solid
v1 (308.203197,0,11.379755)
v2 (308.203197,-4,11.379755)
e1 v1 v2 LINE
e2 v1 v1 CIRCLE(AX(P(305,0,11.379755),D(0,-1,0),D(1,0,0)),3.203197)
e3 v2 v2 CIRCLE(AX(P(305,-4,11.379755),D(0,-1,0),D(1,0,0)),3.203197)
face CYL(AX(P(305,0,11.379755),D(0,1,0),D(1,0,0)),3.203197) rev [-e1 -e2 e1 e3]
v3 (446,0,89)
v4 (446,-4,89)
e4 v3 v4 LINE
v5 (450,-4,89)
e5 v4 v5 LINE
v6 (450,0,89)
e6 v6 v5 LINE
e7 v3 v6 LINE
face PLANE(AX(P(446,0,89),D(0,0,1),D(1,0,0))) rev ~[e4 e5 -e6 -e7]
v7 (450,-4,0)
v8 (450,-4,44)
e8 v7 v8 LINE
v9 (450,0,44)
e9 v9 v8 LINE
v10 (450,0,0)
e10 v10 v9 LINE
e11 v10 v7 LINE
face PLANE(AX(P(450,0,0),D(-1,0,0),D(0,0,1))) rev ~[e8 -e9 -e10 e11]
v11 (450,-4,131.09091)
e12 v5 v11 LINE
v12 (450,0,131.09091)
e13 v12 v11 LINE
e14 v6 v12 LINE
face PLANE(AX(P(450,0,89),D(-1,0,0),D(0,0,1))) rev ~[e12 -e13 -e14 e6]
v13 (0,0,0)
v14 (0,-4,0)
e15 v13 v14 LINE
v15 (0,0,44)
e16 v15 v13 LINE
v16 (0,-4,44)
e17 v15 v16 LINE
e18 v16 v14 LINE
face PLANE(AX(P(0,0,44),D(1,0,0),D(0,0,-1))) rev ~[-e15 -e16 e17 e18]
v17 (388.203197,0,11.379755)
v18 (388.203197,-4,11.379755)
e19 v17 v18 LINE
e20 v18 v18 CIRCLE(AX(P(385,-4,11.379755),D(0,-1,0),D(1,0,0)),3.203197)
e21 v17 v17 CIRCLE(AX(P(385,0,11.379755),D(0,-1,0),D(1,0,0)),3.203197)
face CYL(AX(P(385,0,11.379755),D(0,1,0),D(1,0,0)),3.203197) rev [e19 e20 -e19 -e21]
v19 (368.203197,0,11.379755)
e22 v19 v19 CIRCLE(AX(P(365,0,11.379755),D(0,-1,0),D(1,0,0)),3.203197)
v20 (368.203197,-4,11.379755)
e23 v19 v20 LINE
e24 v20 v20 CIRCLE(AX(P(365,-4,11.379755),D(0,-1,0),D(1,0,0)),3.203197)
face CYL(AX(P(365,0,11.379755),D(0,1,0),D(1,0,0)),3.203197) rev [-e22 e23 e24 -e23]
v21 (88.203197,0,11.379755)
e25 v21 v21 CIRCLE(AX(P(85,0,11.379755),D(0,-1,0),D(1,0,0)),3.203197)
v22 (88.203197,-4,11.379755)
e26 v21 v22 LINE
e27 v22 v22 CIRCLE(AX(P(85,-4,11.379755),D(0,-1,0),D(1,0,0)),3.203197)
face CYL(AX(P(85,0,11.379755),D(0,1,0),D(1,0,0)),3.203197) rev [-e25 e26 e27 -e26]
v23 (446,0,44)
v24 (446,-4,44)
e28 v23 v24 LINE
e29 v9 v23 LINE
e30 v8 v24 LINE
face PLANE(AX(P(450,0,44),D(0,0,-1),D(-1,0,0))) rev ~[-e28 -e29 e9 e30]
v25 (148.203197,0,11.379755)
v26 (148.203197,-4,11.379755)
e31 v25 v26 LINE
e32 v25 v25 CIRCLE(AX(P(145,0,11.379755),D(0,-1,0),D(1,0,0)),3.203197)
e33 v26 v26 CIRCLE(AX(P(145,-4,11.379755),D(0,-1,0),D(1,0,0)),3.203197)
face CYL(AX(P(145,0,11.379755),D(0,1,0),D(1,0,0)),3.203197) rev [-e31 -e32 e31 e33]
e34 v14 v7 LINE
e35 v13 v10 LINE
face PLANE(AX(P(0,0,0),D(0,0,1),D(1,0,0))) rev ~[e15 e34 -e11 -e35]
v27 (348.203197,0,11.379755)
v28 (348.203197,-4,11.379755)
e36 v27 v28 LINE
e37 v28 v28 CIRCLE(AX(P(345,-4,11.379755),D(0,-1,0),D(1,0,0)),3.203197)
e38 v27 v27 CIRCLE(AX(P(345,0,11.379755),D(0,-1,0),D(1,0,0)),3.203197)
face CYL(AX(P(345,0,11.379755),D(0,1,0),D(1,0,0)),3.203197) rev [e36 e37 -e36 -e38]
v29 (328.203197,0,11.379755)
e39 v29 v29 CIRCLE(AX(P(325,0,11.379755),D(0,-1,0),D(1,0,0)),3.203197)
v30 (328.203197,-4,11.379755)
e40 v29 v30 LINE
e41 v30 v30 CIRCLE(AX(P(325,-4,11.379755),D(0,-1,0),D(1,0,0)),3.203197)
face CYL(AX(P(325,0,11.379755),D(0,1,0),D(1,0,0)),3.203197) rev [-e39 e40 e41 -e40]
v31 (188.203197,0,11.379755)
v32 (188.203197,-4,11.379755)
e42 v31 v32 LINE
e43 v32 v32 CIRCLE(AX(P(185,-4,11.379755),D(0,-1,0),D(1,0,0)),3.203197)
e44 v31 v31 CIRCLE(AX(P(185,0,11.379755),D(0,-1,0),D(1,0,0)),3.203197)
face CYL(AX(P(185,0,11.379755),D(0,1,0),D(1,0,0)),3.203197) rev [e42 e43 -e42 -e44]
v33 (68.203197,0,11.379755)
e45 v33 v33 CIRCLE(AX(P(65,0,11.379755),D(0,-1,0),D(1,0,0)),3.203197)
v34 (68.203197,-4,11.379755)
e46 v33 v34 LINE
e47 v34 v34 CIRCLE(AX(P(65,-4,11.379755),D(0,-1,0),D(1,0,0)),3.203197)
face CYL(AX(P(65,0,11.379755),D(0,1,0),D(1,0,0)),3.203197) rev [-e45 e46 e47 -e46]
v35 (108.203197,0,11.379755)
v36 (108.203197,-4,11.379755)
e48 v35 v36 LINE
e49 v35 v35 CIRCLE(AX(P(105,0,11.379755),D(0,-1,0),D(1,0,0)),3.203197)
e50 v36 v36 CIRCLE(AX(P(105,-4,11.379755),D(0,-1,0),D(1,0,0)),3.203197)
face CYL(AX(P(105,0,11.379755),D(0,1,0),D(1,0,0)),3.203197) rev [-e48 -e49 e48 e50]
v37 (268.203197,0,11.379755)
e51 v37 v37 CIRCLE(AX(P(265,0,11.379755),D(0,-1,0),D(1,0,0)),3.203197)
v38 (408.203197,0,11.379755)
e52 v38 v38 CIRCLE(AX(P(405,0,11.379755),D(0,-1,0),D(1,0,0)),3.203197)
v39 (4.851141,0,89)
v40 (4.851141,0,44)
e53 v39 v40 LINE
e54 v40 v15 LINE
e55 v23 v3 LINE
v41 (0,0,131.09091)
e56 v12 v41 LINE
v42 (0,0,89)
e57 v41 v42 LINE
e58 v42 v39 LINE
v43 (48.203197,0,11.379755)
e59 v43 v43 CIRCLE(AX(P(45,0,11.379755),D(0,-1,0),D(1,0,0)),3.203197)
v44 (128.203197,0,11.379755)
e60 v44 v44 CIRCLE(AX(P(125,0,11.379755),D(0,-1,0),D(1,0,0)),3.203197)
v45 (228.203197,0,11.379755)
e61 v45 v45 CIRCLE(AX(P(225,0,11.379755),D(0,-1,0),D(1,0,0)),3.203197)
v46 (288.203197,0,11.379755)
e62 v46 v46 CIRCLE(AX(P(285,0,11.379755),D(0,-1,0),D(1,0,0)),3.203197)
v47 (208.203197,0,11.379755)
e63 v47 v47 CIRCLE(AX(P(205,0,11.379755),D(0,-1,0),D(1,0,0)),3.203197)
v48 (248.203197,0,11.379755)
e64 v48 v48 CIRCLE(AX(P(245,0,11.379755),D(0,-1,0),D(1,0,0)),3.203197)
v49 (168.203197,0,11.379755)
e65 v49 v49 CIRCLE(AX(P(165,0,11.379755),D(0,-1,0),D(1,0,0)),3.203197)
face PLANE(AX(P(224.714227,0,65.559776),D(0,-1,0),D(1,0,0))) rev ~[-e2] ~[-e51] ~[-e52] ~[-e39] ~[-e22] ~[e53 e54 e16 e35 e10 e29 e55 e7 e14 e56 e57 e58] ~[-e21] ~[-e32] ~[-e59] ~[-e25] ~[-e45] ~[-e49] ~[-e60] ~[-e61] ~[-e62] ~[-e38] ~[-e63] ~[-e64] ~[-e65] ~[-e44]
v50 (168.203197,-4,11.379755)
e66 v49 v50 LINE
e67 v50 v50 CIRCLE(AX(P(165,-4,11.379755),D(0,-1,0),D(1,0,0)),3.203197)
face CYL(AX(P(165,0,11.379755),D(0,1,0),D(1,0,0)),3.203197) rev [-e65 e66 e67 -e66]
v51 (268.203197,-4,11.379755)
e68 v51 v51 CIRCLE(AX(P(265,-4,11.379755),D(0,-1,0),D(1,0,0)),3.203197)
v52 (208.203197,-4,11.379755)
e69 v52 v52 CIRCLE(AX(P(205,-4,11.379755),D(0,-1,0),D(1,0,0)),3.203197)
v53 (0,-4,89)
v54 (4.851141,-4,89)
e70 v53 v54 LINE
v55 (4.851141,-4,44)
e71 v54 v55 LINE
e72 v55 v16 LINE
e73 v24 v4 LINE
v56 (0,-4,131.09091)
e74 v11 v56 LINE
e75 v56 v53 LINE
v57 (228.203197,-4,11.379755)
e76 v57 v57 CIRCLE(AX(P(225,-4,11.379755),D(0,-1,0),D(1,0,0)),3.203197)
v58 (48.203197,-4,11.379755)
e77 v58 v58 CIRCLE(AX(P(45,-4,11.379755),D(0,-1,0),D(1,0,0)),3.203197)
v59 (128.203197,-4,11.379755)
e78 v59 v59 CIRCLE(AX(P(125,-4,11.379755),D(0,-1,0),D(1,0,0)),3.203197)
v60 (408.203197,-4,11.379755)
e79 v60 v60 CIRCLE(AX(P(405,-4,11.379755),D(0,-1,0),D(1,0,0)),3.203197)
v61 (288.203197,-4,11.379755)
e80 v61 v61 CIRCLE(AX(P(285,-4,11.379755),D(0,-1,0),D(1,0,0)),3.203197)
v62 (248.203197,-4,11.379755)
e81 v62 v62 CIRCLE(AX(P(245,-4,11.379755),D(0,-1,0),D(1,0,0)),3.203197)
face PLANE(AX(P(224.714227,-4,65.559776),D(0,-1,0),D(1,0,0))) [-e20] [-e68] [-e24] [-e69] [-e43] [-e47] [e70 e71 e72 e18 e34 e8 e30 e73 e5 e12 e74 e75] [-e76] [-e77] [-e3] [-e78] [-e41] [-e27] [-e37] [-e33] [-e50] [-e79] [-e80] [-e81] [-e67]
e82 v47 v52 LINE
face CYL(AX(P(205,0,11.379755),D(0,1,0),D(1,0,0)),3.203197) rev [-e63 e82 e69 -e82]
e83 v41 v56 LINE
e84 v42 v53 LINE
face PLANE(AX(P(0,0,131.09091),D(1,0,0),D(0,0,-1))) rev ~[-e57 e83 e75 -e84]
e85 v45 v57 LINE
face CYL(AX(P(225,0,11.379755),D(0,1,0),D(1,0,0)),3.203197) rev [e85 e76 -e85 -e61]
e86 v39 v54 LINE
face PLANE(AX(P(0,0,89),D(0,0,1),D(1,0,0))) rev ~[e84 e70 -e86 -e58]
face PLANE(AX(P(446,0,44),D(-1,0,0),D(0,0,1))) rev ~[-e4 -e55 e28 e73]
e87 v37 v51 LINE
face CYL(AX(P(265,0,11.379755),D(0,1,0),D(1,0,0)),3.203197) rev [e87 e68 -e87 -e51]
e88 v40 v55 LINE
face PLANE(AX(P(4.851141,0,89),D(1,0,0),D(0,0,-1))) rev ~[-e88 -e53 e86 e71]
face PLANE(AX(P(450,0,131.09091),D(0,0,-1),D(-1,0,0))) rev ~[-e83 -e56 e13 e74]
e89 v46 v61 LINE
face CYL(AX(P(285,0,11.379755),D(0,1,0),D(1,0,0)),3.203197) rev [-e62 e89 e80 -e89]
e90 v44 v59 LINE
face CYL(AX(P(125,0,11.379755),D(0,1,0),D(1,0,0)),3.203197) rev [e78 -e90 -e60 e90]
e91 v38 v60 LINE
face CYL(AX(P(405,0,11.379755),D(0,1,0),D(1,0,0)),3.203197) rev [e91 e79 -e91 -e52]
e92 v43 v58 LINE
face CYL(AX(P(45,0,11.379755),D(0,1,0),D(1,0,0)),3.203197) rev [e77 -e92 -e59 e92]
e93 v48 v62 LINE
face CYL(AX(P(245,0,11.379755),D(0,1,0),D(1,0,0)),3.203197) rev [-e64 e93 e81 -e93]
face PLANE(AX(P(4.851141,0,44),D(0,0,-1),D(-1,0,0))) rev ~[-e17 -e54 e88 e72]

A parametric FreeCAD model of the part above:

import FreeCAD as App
import Part
import Sketcher
Q = App.Units.Quantity

doc = App.newDocument("Part")
params = doc.addObject("Spreadsheet::Sheet", "Params")
for row, (alias, value) in enumerate([
    ("sketch1_width", "450 mm"),
    ("sketch1_width2", "4 mm"),
    ("sketch1_height", "44 mm"),
    ("sketch1_height2", "45 mm"),
    ("pad1_length", "4 mm"),
], start=1):
    params.set(f"A{row}", alias)
    params.set(f"B{row}", "=" + value)
    params.setAlias(f"B{row}", alias)

body = doc.addObject("PartDesign::Body", "Body")

sketch1 = doc.addObject("Sketcher::SketchObject", "Sketch")
body.addObject(sketch1)
sketch1.AttachmentSupport = (doc.XZ_Plane, [""])
sketch1.MapMode = "FlatFace"
sketch1.addGeometry([
    Part.LineSegment(App.Vector(0, 44, 0), App.Vector(0, 0, 0)),
    Part.LineSegment(App.Vector(0, 0, 0), App.Vector(450, 0, 0)),
    Part.LineSegment(App.Vector(450, 0, 0), App.Vector(450, 44, 0)),
    Part.LineSegment(App.Vector(450, 44, 0), App.Vector(446, 44, 0)),
    Part.LineSegment(App.Vector(446, 44, 0), App.Vector(446, 89, 0)),
    Part.LineSegment(App.Vector(446, 89, 0), App.Vector(450, 89, 0)),
    Part.LineSegment(App.Vector(450, 89, 0), App.Vector(450, 131.09091, 0)),
    Part.LineSegment(App.Vector(450, 131.09091, 0), App.Vector(0, 131.09091, 0)),
    Part.LineSegment(App.Vector(0, 131.09091, 0), App.Vector(0, 89, 0)),
    Part.LineSegment(App.Vector(0, 89, 0), App.Vector(4.851141, 89, 0)),
    Part.LineSegment(App.Vector(4.851141, 89, 0), App.Vector(4.851141, 44, 0)),
    Part.LineSegment(App.Vector(4.851141, 44, 0), App.Vector(0, 44, 0)),
    Part.Circle(App.Vector(45, 11.379755, 0), App.Vector(0, 0, 1), 3.203197),
    Part.Circle(App.Vector(65, 11.379755, 0), App.Vector(0, 0, 1), 3.203197),
    Part.Circle(App.Vector(85, 11.379755, 0), App.Vector(0, 0, 1), 3.203197),
    Part.Circle(App.Vector(105, 11.379755, 0), App.Vector(0, 0, 1), 3.203197),
    Part.Circle(App.Vector(125, 11.379755, 0), App.Vector(0, 0, 1), 3.203197),
    Part.Circle(App.Vector(145, 11.379755, 0), App.Vector(0, 0, 1), 3.203197),
    Part.Circle(App.Vector(165, 11.379755, 0), App.Vector(0, 0, 1), 3.203197),
    Part.Circle(App.Vector(185, 11.379755, 0), App.Vector(0, 0, 1), 3.203197),
    Part.Circle(App.Vector(205, 11.379755, 0), App.Vector(0, 0, 1), 3.203197),
    Part.Circle(App.Vector(225, 11.379755, 0), App.Vector(0, 0, 1), 3.203197),
    Part.Circle(App.Vector(245, 11.379755, 0), App.Vector(0, 0, 1), 3.203197),
    Part.Circle(App.Vector(265, 11.379755, 0), App.Vector(0, 0, 1), 3.203197),
    Part.Circle(App.Vector(285, 11.379755, 0), App.Vector(0, 0, 1), 3.203197),
    Part.Circle(App.Vector(305, 11.379755, 0), App.Vector(0, 0, 1), 3.203197),
    Part.Circle(App.Vector(325, 11.379755, 0), App.Vector(0, 0, 1), 3.203197),
    Part.Circle(App.Vector(345, 11.379755, 0), App.Vector(0, 0, 1), 3.203197),
    Part.Circle(App.Vector(365, 11.379755, 0), App.Vector(0, 0, 1), 3.203197),
    Part.Circle(App.Vector(385, 11.379755, 0), App.Vector(0, 0, 1), 3.203197),
    Part.Circle(App.Vector(405, 11.379755, 0), App.Vector(0, 0, 1), 3.203197),
], False)
sketch1.addConstraint([
    Sketcher.Constraint("Coincident", 0, 2, 1, 1),
    Sketcher.Constraint("Coincident", 1, 2, 2, 1),
    Sketcher.Constraint("Coincident", 2, 2, 3, 1),
    Sketcher.Constraint("Coincident", 3, 2, 4, 1),
    Sketcher.Constraint("Coincident", 4, 2, 5, 1),
    Sketcher.Constraint("Coincident", 5, 2, 6, 1),
    Sketcher.Constraint("Coincident", 6, 2, 7, 1),
    Sketcher.Constraint("Coincident", 7, 2, 8, 1),
    Sketcher.Constraint("Coincident", 8, 2, 9, 1),
    Sketcher.Constraint("Coincident", 9, 2, 10, 1),
    Sketcher.Constraint("Coincident", 10, 2, 11, 1),
    Sketcher.Constraint("Coincident", 11, 2, 0, 1),
    Sketcher.Constraint("Vertical", 0),
    Sketcher.Constraint("Horizontal", 1),
    Sketcher.Constraint("Vertical", 2),
    Sketcher.Constraint("Horizontal", 3),
    Sketcher.Constraint("Vertical", 4),
    Sketcher.Constraint("Horizontal", 5),
    Sketcher.Constraint("Vertical", 6),
    Sketcher.Constraint("Horizontal", 7),
    Sketcher.Constraint("Vertical", 8),
    Sketcher.Constraint("Horizontal", 9),
    Sketcher.Constraint("Vertical", 10),
    Sketcher.Constraint("Horizontal", 11),
    Sketcher.Constraint("Coincident", 0, 2, -1, 1),
    Sketcher.Constraint("Equal", 12, 13),
    Sketcher.Constraint("Equal", 13, 14),
    Sketcher.Constraint("Equal", 14, 15),
    Sketcher.Constraint("Equal", 15, 16),
    Sketcher.Constraint("Equal", 16, 17),
    Sketcher.Constraint("Equal", 17, 18),
    Sketcher.Constraint("Equal", 18, 19),
    Sketcher.Constraint("Equal", 19, 20),
    Sketcher.Constraint("Equal", 20, 21),
    Sketcher.Constraint("Equal", 21, 22),
    Sketcher.Constraint("Equal", 22, 23),
    Sketcher.Constraint("Equal", 23, 24),
    Sketcher.Constraint("Equal", 24, 25),
    Sketcher.Constraint("Equal", 25, 26),
    Sketcher.Constraint("Equal", 26, 27),
    Sketcher.Constraint("Equal", 27, 28),
    Sketcher.Constraint("Equal", 28, 29),
    Sketcher.Constraint("Equal", 29, 30),
    Sketcher.Constraint("PointOnObject", 7, 2, -2),
    Sketcher.Constraint("Horizontal", 12, 3, 13, 3),
    Sketcher.Constraint("Horizontal", 13, 3, 14, 3),
    Sketcher.Constraint("Horizontal", 14, 3, 15, 3),
    Sketcher.Constraint("Horizontal", 15, 3, 16, 3),
    Sketcher.Constraint("Horizontal", 16, 3, 17, 3),
    Sketcher.Constraint("Horizontal", 17, 3, 18, 3),
    Sketcher.Constraint("Horizontal", 18, 3, 19, 3),
    Sketcher.Constraint("Horizontal", 19, 3, 20, 3),
    Sketcher.Constraint("Horizontal", 20, 3, 21, 3),
    Sketcher.Constraint("Horizontal", 21, 3, 22, 3),
    Sketcher.Constraint("Horizontal", 22, 3, 23, 3),
    Sketcher.Constraint("Horizontal", 23, 3, 24, 3),
    Sketcher.Constraint("Horizontal", 24, 3, 25, 3),
    Sketcher.Constraint("Horizontal", 25, 3, 26, 3),
    Sketcher.Constraint("Horizontal", 26, 3, 27, 3),
    Sketcher.Constraint("Horizontal", 27, 3, 28, 3),
    Sketcher.Constraint("Horizontal", 28, 3, 29, 3),
    Sketcher.Constraint("Horizontal", 29, 3, 30, 3),
    Sketcher.Constraint("Horizontal", 5, 2, 8, 2),
    Sketcher.Constraint("Horizontal", 3, 2, 10, 2),
    Sketcher.Constraint("Vertical", 2, 2, 5, 2),
    Sketcher.Constraint("DistanceX", 1, 1, 1, 2, Q("450 mm")),
    Sketcher.Constraint("DistanceX", 3, 2, 3, 1, Q("4 mm")),
    Sketcher.Constraint("DistanceY", 0, 2, 0, 1, Q("44 mm")),
    Sketcher.Constraint("DistanceY", 4, 1, 4, 2, Q("45 mm")),
    Sketcher.Constraint("DistanceX", -1, 1, 12, 3, Q("45 mm")),
    Sketcher.Constraint("DistanceX", -1, 1, 13, 3, Q("65 mm")),
    Sketcher.Constraint("DistanceX", -1, 1, 14, 3, Q("85 mm")),
    Sketcher.Constraint("DistanceX", -1, 1, 15, 3, Q("105 mm")),
    Sketcher.Constraint("DistanceX", -1, 1, 16, 3, Q("125 mm")),
    Sketcher.Constraint("DistanceX", -1, 1, 17, 3, Q("145 mm")),
    Sketcher.Constraint("DistanceX", -1, 1, 18, 3, Q("165 mm")),
    Sketcher.Constraint("DistanceX", -1, 1, 19, 3, Q("185 mm")),
    Sketcher.Constraint("DistanceX", -1, 1, 20, 3, Q("205 mm")),
    Sketcher.Constraint("DistanceX", -1, 1, 21, 3, Q("225 mm")),
    Sketcher.Constraint("DistanceX", -1, 1, 22, 3, Q("245 mm")),
    Sketcher.Constraint("DistanceX", -1, 1, 23, 3, Q("265 mm")),
    Sketcher.Constraint("DistanceX", -1, 1, 24, 3, Q("285 mm")),
    Sketcher.Constraint("DistanceX", -1, 1, 25, 3, Q("305 mm")),
    Sketcher.Constraint("DistanceX", -1, 1, 26, 3, Q("325 mm")),
    Sketcher.Constraint("DistanceX", -1, 1, 27, 3, Q("345 mm")),
    Sketcher.Constraint("DistanceX", -1, 1, 28, 3, Q("365 mm")),
    Sketcher.Constraint("DistanceX", -1, 1, 29, 3, Q("385 mm")),
    Sketcher.Constraint("DistanceX", -1, 1, 30, 3, Q("405 mm")),
    Sketcher.Constraint("Diameter", 12, Q("6.406394 mm")),
    Sketcher.Constraint("DistanceX", 9, 1, 9, 2, Q("4.851141 mm")),
    Sketcher.Constraint("DistanceY", 6, 1, 6, 2, Q("42.09091 mm")),
    Sketcher.Constraint("DistanceY", -1, 1, 12, 3, Q("11.379755 mm")),
])
sketch1.setExpression("Constraints[65]", "Params.sketch1_width")
sketch1.setExpression("Constraints[66]", "Params.sketch1_width2")
sketch1.setExpression("Constraints[67]", "Params.sketch1_height")
sketch1.setExpression("Constraints[68]", "Params.sketch1_height2")
pad1 = doc.addObject("PartDesign::Pad", "Pad")
body.addObject(pad1)
pad1.Profile = sketch1
pad1.setExpression("Length", "Params.pad1_length")

doc.recompute()
